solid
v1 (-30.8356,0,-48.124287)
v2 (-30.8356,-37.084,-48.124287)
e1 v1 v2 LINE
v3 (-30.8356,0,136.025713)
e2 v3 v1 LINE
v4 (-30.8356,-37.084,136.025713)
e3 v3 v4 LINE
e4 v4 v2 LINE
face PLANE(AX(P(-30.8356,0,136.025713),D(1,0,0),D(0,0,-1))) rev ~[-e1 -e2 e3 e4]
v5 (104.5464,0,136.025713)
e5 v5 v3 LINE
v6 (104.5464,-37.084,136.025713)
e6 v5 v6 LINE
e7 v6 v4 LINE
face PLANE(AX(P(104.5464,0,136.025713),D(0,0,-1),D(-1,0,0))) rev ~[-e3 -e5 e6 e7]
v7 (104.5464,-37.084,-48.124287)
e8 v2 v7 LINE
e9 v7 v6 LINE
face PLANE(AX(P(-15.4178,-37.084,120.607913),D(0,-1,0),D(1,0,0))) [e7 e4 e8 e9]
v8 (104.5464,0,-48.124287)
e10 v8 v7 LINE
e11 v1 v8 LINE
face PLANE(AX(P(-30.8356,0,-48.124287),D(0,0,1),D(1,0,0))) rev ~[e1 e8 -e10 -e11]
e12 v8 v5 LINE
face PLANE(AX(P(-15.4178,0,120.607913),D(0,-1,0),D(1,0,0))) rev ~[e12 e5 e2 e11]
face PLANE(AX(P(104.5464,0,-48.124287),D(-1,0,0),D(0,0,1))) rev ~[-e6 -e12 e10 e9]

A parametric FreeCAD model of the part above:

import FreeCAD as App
import Part
import Sketcher
Q = App.Units.Quantity

doc = App.newDocument("Part")
body = doc.addObject("PartDesign::Body", "Body")

sketch1 = doc.addObject("Sketcher::SketchObject", "Sketch")
body.addObject(sketch1)
sketch1.AttachmentSupport = (doc.XZ_Plane, [""])
sketch1.MapMode = "FlatFace"
sketch1.addGeometry([
    Part.LineSegment(App.Vector(-31, 136, 0), App.Vector(-31, -48, 0)),
    Part.LineSegment(App.Vector(-31, -48, 0), App.Vector(105, -48, 0)),
    Part.LineSegment(App.Vector(105, -48, 0), App.Vector(105, 136, 0)),
    Part.LineSegment(App.Vector(105, 136, 0), App.Vector(-31, 136, 0)),
], False)
sketch1.addConstraint([
    Sketcher.Constraint("Coincident", 0, 2, 1, 1),
    Sketcher.Constraint("Coincident", 1, 2, 2, 1),
    Sketcher.Constraint("Coincident", 2, 2, 3, 1),
    Sketcher.Constraint("Coincident", 3, 2, 0, 1),
    Sketcher.Constraint("Vertical", 0),
    Sketcher.Constraint("Horizontal", 1),
    Sketcher.Constraint("Vertical", 2),
    Sketcher.Constraint("Horizontal", 3),
    Sketcher.Constraint("DistanceX", 1, 1, 1, 2, Q("5.33 in")),
    Sketcher.Constraint("DistanceY", 0, 2, 0, 1, Q("7.25 in")),
    Sketcher.Constraint("DistanceX", 0, 2, -1, 1, Q("1.214 in")),
    Sketcher.Constraint("DistanceY", 0, 2, -1, 1, 48.124287),
])
pad1 = doc.addObject("PartDesign::Pad", "Pad")
body.addObject(pad1)
pad1.Profile = sketch1
pad1.Length = Q("1.46 in")

doc.recompute()
